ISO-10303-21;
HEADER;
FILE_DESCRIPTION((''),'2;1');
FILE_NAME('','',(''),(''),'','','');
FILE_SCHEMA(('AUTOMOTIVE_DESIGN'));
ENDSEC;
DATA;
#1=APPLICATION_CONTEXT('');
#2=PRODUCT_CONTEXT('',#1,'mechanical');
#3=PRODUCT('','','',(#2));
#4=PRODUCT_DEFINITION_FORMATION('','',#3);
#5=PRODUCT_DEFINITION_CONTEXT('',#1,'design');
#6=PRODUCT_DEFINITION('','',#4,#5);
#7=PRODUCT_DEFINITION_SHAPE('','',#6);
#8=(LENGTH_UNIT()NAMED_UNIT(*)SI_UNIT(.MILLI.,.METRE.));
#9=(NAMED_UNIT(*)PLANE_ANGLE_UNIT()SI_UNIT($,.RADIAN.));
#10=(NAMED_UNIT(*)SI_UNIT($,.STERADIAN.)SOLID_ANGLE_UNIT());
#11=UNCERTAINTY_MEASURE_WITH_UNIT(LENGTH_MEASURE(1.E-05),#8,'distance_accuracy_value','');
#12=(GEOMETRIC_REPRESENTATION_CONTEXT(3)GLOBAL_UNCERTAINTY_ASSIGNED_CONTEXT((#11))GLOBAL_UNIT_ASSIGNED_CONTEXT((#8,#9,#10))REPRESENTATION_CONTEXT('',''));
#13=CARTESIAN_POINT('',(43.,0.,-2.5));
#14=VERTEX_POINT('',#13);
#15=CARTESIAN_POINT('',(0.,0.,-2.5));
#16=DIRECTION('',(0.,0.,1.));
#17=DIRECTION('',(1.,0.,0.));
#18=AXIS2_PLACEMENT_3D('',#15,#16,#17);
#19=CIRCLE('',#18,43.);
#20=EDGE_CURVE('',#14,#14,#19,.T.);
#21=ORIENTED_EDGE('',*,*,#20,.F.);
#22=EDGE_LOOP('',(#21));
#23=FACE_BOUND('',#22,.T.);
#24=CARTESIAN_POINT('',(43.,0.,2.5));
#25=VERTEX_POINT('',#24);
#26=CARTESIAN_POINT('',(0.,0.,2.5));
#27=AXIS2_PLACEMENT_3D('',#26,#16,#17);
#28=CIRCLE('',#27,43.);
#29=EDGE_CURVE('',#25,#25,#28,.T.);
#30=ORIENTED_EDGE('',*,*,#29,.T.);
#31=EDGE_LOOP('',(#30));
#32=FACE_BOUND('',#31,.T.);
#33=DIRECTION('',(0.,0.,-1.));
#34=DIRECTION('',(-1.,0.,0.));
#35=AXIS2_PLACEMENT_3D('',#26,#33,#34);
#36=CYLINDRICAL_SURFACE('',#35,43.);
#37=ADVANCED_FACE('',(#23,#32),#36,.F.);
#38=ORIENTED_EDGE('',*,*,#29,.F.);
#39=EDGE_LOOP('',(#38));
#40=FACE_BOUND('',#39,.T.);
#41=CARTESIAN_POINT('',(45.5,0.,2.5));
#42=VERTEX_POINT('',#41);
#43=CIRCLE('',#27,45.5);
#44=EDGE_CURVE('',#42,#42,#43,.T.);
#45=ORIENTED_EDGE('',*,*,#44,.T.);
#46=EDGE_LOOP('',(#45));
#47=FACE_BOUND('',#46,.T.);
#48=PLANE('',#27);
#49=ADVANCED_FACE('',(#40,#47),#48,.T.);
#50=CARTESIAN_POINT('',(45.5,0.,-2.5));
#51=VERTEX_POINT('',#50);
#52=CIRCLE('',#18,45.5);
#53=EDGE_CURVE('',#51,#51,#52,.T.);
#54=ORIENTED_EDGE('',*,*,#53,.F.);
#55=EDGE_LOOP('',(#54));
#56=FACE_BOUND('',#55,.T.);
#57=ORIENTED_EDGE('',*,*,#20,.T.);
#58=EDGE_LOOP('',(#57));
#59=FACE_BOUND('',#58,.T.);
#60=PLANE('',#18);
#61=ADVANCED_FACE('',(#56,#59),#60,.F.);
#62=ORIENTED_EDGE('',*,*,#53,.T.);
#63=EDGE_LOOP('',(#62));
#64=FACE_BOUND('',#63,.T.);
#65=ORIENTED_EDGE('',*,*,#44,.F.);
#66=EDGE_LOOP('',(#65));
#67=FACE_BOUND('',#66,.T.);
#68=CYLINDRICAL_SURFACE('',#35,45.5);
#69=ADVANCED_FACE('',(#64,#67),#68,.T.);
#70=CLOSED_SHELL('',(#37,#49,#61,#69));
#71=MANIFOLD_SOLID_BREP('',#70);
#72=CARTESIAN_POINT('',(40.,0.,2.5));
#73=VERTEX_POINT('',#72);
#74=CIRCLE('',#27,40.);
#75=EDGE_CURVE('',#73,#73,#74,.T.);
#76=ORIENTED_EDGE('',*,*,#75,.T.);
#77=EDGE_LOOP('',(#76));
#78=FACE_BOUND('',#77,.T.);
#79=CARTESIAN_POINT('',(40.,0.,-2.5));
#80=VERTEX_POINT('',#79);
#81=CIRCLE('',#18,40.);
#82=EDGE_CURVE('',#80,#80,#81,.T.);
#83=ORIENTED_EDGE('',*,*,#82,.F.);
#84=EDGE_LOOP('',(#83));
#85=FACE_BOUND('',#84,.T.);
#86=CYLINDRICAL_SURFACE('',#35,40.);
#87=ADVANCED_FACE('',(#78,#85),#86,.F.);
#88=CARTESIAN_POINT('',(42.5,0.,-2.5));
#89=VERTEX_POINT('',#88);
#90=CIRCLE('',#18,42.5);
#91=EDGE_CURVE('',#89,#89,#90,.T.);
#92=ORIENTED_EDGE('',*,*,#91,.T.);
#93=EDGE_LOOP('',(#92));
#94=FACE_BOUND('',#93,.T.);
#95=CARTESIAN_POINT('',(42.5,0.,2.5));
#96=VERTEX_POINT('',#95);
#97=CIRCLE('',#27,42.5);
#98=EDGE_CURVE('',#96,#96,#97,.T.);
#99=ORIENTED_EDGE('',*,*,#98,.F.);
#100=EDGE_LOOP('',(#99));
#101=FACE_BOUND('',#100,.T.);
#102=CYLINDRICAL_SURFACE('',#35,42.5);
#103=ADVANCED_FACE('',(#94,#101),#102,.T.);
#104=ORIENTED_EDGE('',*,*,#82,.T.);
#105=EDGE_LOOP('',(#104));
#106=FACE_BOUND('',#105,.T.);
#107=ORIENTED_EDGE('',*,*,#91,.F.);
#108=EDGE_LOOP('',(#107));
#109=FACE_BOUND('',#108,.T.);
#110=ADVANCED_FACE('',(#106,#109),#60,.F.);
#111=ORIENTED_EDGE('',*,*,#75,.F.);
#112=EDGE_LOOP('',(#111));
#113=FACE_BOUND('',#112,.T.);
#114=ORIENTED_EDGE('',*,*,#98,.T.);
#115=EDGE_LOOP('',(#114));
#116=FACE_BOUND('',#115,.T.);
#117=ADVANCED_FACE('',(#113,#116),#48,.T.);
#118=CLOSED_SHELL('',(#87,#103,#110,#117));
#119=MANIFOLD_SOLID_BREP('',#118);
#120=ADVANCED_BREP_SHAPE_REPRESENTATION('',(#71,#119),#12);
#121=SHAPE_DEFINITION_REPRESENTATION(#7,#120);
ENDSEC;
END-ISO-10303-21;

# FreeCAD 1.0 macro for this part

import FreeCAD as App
import Part
import Sketcher
from FreeCAD import Vector

doc = App.newDocument("Part")
body = doc.addObject("PartDesign::Body", "Body")

# Sketch on XY plane
sketch1 = body.newObject("Sketcher::SketchObject", "Sketch")
sketch1.AttachmentSupport = (doc.getObject("XY_Plane"), [""])
sketch1.MapMode = "FlatFace"
sketch1.addGeometry(Part.Circle(Vector(0, 0, 0), Vector(0, 0, 1), 42.5), False)
sketch1.addGeometry(Part.Circle(Vector(0, 0, 0), Vector(0, 0, 1), 40), False)
sketch1.addConstraint(Sketcher.Constraint("Coincident", 0, 3, -1, 1))
sketch1.addConstraint(Sketcher.Constraint("Coincident", 1, 3, -1, 1))
sketch1.addConstraint(Sketcher.Constraint("Diameter", 0, 85.0))
sketch1.addConstraint(Sketcher.Constraint("Diameter", 1, 80.0))
pad1 = body.newObject("PartDesign::Pad", "Pad")
pad1.Profile = sketch1
pad1.Length = 5
pad1.Midplane = True
body2 = doc.addObject("PartDesign::Body", "Body001")

# Sketch on XY plane
sketch2 = body2.newObject("Sketcher::SketchObject", "Sketch001")
sketch2.AttachmentSupport = (doc.getObject("XY_Plane001"), [""])
sketch2.MapMode = "FlatFace"
sketch2.addGeometry(Part.Circle(Vector(0, 0, 0), Vector(0, 0, 1), 45.5), False)
sketch2.addGeometry(Part.Circle(Vector(0, 0, 0), Vector(0, 0, 1), 43), False)
sketch2.addConstraint(Sketcher.Constraint("Coincident", 0, 3, -1, 1))
sketch2.addConstraint(Sketcher.Constraint("Coincident", 1, 3, -1, 1))
sketch2.addConstraint(Sketcher.Constraint("Diameter", 0, 91.0))
sketch2.addConstraint(Sketcher.Constraint("Diameter", 1, 86.0))
pad2 = body2.newObject("PartDesign::Pad", "Pad001")
pad2.Profile = sketch2
pad2.Length = 5
pad2.Midplane = True

doc.recompute()
